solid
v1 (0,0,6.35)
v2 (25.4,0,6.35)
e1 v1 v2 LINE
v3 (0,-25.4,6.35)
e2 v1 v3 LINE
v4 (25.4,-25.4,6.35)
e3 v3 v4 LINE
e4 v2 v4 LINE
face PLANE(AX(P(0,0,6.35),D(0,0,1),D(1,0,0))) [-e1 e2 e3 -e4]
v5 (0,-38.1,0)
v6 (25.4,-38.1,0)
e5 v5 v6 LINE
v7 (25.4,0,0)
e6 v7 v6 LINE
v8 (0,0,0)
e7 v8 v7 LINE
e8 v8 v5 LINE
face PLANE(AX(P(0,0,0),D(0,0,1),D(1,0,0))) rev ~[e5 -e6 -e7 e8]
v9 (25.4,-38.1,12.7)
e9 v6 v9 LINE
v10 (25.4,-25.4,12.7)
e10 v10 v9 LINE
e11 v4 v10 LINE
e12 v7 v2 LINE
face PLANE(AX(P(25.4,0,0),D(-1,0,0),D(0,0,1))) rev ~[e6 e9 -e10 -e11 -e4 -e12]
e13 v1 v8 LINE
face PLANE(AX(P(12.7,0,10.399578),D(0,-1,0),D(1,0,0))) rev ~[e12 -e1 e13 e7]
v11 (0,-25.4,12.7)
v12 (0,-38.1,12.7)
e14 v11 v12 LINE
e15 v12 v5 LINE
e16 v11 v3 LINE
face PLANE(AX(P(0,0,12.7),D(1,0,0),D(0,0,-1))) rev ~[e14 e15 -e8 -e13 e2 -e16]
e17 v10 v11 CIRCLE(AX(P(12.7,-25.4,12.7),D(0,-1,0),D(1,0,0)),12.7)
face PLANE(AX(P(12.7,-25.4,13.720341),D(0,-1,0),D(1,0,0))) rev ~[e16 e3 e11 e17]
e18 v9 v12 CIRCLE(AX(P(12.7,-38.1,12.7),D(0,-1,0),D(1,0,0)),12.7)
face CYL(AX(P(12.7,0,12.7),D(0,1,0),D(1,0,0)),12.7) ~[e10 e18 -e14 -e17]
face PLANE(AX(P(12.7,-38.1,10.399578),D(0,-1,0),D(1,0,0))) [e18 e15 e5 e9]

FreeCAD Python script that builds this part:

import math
import FreeCAD as App
import Part
import Sketcher
from FreeCAD import Vector
Q = App.Units.Quantity

doc = App.newDocument("Part")
body = doc.addObject("PartDesign::Body", "Body")

sketch1 = doc.addObject("Sketcher::SketchObject", "Sketch")
body.addObject(sketch1)
sketch1.AttachmentSupport = (doc.XZ_Plane, [""])
sketch1.MapMode = "FlatFace"
sketch1.addGeometry(Part.LineSegment(Vector(0, 13, 0), Vector(0, 0, 0)), False)
sketch1.addGeometry(Part.LineSegment(Vector(0, 0, 0), Vector(25, 0, 0)), False)
sketch1.addGeometry(Part.LineSegment(Vector(25, 0, 0), Vector(25, 13, 0)), False)
sketch1.addGeometry(Part.ArcOfCircle(Part.Circle(Vector(13, 13, 0), Vector(0, 0, 1), 13), math.radians(0), math.radians(180)), False)
sketch1.addConstraint(Sketcher.Constraint("Coincident", 0, 2, 1, 1))
sketch1.addConstraint(Sketcher.Constraint("Coincident", 1, 2, 2, 1))
sketch1.addConstraint(Sketcher.Constraint("Tangent", 2, 2, 3, 1))
sketch1.addConstraint(Sketcher.Constraint("Tangent", 3, 2, 0, 1))
sketch1.addConstraint(Sketcher.Constraint("Vertical", 0))
sketch1.addConstraint(Sketcher.Constraint("Horizontal", 1))
sketch1.addConstraint(Sketcher.Constraint("Vertical", 2))
sketch1.addConstraint(Sketcher.Constraint("Coincident", 0, 2, -1, 1))
sketch1.addConstraint(Sketcher.Constraint("Radius", 3, Q("0.5 in")))
sketch1.addConstraint(Sketcher.Constraint("DistanceY", 0, 2, 0, 1, Q("0.5 in")))
pad1 = doc.addObject("PartDesign::Pad", "Pad")
body.addObject(pad1)
pad1.Profile = sketch1
pad1.Length = Q("1.5 in")

sketch2 = doc.addObject("Sketcher::SketchObject", "Sketch001")
body.addObject(sketch2)
sketch2.AttachmentSupport = (doc.XZ_Plane, [""])
sketch2.MapMode = "FlatFace"
sketch2.addGeometry(Part.LineSegment(Vector(0, 13, 0), Vector(0, 6, 0)), False)
sketch2.addGeometry(Part.LineSegment(Vector(0, 6, 0), Vector(25, 6, 0)), False)
sketch2.addGeometry(Part.LineSegment(Vector(25, 6, 0), Vector(25, 13, 0)), False)
sketch2.addGeometry(Part.ArcOfCircle(Part.Circle(Vector(13, 13, 0), Vector(0, 0, 1), 13), math.radians(0), math.radians(180)), False)
sketch2.addConstraint(Sketcher.Constraint("Coincident", 0, 2, 1, 1))
sketch2.addConstraint(Sketcher.Constraint("Coincident", 1, 2, 2, 1))
sketch2.addConstraint(Sketcher.Constraint("Tangent", 2, 2, 3, 1))
sketch2.addConstraint(Sketcher.Constraint("Tangent", 3, 2, 0, 1))
sketch2.addConstraint(Sketcher.Constraint("Vertical", 0))
sketch2.addConstraint(Sketcher.Constraint("Horizontal", 1))
sketch2.addConstraint(Sketcher.Constraint("Vertical", 2))
sketch2.addConstraint(Sketcher.Constraint("PointOnObject", 0, 2, -2))
sketch2.addConstraint(Sketcher.Constraint("Radius", 3, Q("0.5 in")))
sketch2.addConstraint(Sketcher.Constraint("DistanceY", 0, 2, 0, 1, Q("0.25 in")))
sketch2.addConstraint(Sketcher.Constraint("DistanceY", -1, 1, 3, 3, Q("0.5 in")))
pocket1 = doc.addObject("PartDesign::Pocket", "Pocket")
body.addObject(pocket1)
pocket1.Profile = sketch2
pocket1.Length = Q("1 in")
pocket1.Reversed = True

doc.recompute()
